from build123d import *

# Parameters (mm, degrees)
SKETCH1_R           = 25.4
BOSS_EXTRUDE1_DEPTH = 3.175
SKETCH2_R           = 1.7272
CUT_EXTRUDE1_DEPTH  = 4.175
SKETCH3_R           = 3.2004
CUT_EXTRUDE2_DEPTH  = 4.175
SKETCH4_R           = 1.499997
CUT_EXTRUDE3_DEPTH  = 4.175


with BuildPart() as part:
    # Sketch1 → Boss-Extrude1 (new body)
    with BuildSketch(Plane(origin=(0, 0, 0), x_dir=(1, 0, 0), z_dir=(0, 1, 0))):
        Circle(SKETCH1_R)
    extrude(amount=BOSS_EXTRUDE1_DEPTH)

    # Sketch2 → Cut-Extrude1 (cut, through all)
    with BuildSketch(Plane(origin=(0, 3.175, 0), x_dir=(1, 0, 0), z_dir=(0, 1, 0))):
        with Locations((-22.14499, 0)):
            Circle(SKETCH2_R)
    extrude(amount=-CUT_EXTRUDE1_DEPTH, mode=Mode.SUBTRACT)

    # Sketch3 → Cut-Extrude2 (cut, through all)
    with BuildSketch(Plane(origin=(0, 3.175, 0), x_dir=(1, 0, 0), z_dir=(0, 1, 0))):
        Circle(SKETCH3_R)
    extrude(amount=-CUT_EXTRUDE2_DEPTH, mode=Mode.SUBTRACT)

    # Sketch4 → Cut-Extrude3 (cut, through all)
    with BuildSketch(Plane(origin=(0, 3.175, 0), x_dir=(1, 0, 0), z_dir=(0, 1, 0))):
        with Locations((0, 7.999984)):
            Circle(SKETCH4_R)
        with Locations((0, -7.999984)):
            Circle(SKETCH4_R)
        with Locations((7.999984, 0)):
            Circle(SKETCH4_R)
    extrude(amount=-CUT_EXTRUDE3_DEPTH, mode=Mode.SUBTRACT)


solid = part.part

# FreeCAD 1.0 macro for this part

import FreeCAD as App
import Part
import Sketcher

V = App.Vector
Q = App.Units.Quantity

doc = App.newDocument("Part")
params = doc.addObject("Spreadsheet::Sheet", "Params")
for row, (alias, value) in enumerate([
    ("sketch1_diameter", "2 in"),
    ("pad1_length", "0.125 in"),
    ("sketch2_diameter", "0.136 in"),
    ("sketch3_diameter", "0.252 in"),
], start=1):
    params.set(f"A{row}", alias)
    params.set(f"B{row}", "=" + value)
    params.setAlias(f"B{row}", alias)

body = doc.addObject("PartDesign::Body", "Body")

sketch1 = body.newObject("Sketcher::SketchObject", "Sketch")
sketch1.AttachmentSupport = (doc.getObject("XZ_Plane"), [""])
sketch1.MapMode = "FlatFace"
sketch1.addGeometry(Part.Circle(V(0, 0, 0), V(0, 0, 1), 25), False)
sketch1.addConstraint(Sketcher.Constraint("Coincident", 0, 3, -1, 1))
sketch1.addConstraint(Sketcher.Constraint("Diameter", 0, Q("2 in")))
sketch1.setExpression("Constraints[1]", "Params.sketch1_diameter")
pad1 = body.newObject("PartDesign::Pad", "Pad")
pad1.Profile = sketch1
pad1.setExpression("Length", "Params.pad1_length")
pad1.Reversed = True

sketch2 = body.newObject("Sketcher::SketchObject", "Sketch001")
sketch2.AttachmentSupport = (doc.getObject("XZ_Plane"), [""])
sketch2.MapMode = "FlatFace"
sketch2.AttachmentOffset = App.Placement(V(0, 0, -0.125 * 25.4), App.Rotation())
sketch2.addGeometry(Part.Circle(V(-22.1, 0, 0), V(0, 0, 1), 1.7), False)
sketch2.addConstraint(Sketcher.Constraint("PointOnObject", 0, 3, -1))
sketch2.addConstraint(Sketcher.Constraint("Diameter", 0, Q("0.136 in")))
sketch2.addConstraint(Sketcher.Constraint("DistanceX", 0, 3, -1, 1, Q("22.14499 mm")))
sketch2.setExpression("Constraints[1]", "Params.sketch2_diameter")
pocket1 = body.newObject("PartDesign::Pocket", "Pocket")
pocket1.Profile = sketch2
pocket1.Type = "ThroughAll"
pocket1.Reversed = True

sketch3 = body.newObject("Sketcher::SketchObject", "Sketch002")
sketch3.AttachmentSupport = (doc.getObject("XZ_Plane"), [""])
sketch3.MapMode = "FlatFace"
sketch3.AttachmentOffset = App.Placement(V(0, 0, -0.125 * 25.4), App.Rotation())
sketch3.addGeometry(Part.Circle(V(0, 0, 0), V(0, 0, 1), 3.2), False)
sketch3.addConstraint(Sketcher.Constraint("Coincident", 0, 3, -1, 1))
sketch3.addConstraint(Sketcher.Constraint("Diameter", 0, Q("0.252 in")))
sketch3.setExpression("Constraints[1]", "Params.sketch3_diameter")
pocket2 = body.newObject("PartDesign::Pocket", "Pocket001")
pocket2.Profile = sketch3
pocket2.Type = "ThroughAll"
pocket2.Reversed = True

sketch4 = body.newObject("Sketcher::SketchObject", "Sketch003")
sketch4.AttachmentSupport = (doc.getObject("XZ_Plane"), [""])
sketch4.MapMode = "FlatFace"
sketch4.AttachmentOffset = App.Placement(V(0, 0, -0.125 * 25.4), App.Rotation())
sketch4.addGeometry(Part.Circle(V(0, -8, 0), V(0, 0, 1), 1.5), False)
sketch4.addGeometry(Part.Circle(V(0, 8, 0), V(0, 0, 1), 1.5), False)
sketch4.addGeometry(Part.Circle(V(8, 0, 0), V(0, 0, 1), 1.5), False)
sketch4.addConstraint(Sketcher.Constraint("Equal", 0, 1))
sketch4.addConstraint(Sketcher.Constraint("Equal", 1, 2))
sketch4.addConstraint(Sketcher.Constraint("Symmetric", 0, 3, 1, 3, -1, 1))
sketch4.addConstraint(Sketcher.Constraint("PointOnObject", 0, 3, -2))
sketch4.addConstraint(Sketcher.Constraint("PointOnObject", 2, 3, -1))
sketch4.addConstraint(Sketcher.Constraint("Diameter", 0, Q("2.999994 mm")))
sketch4.addConstraint(Sketcher.Constraint("DistanceY", 0, 3, 1, 3, Q("15.999968 mm")))
sketch4.addConstraint(Sketcher.Constraint("DistanceX", -1, 1, 2, 3, Q("7.999984 mm")))
pocket3 = body.newObject("PartDesign::Pocket", "Pocket002")
pocket3.Profile = sketch4
pocket3.Type = "ThroughAll"
pocket3.Reversed = True

doc.recompute()
